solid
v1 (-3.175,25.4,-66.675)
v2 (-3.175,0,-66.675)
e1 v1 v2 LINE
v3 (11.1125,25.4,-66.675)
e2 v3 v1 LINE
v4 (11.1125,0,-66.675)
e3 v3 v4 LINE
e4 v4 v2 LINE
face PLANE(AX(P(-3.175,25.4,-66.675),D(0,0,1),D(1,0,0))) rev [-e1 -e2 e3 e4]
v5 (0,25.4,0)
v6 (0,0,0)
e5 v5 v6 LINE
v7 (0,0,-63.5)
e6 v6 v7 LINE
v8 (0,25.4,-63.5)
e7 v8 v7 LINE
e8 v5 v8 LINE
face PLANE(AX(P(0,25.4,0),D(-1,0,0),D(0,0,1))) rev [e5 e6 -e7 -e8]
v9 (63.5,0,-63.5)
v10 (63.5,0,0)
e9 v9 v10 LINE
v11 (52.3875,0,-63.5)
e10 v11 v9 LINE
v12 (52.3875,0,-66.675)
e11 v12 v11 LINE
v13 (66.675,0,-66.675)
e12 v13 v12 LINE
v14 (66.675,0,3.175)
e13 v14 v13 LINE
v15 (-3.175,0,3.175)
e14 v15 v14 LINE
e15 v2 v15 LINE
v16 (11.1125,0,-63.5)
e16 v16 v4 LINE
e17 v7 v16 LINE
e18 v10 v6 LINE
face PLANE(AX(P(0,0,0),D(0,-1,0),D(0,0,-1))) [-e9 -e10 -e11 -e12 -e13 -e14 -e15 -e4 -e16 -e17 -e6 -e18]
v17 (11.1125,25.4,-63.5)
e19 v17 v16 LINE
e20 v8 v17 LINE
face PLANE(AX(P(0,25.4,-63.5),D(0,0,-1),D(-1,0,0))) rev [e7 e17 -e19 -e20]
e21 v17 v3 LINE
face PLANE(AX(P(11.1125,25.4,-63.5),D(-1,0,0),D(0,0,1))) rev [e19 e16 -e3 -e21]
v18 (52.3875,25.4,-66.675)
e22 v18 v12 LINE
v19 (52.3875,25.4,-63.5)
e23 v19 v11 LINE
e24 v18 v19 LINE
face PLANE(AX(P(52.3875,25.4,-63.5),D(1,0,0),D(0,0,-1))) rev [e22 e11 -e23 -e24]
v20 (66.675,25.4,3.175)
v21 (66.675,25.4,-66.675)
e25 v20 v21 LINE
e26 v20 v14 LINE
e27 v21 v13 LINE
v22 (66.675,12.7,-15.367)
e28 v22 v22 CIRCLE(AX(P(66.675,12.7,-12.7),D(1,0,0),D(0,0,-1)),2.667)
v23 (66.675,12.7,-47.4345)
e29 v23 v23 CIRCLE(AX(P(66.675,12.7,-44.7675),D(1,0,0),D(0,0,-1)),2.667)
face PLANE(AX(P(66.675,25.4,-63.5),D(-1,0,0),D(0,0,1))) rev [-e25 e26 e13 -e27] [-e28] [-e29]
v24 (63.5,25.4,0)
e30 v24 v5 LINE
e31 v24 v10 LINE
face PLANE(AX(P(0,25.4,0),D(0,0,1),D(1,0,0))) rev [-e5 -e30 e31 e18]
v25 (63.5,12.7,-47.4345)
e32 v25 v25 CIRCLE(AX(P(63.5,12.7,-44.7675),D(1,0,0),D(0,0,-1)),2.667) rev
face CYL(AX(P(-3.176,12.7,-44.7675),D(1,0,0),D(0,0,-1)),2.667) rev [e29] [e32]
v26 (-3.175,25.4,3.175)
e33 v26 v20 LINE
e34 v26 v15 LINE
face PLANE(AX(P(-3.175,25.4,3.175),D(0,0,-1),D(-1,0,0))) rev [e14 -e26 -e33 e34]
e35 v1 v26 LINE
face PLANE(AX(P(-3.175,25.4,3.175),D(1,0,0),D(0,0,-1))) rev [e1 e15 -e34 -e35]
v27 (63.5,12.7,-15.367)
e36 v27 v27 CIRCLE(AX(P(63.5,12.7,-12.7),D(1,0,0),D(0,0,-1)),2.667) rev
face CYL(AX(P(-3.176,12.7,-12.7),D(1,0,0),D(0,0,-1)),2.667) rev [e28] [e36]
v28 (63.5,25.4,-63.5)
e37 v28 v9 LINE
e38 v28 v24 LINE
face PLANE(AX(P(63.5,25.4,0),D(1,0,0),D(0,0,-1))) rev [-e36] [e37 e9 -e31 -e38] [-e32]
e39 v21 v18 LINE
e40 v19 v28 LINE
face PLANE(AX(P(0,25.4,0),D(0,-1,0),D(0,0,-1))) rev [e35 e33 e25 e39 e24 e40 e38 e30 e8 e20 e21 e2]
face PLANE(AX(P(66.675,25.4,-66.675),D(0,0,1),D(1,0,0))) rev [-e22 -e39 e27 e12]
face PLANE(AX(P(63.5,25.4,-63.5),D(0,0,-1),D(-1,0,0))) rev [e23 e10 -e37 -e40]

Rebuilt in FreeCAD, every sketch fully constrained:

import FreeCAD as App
import Part
import Sketcher
Q = App.Units.Quantity


def add_polygon(sketch, points):
    """Adds a closed chain of lines whose ends are joined by coincident constraints."""
    first, n = sketch.GeometryCount, len(points)
    for a, b in zip(points, points[1:] + points[:1]):
        sketch.addGeometry(Part.LineSegment(App.Vector(*a, 0), App.Vector(*b, 0)), False)
    for i in range(n):
        sketch.addConstraint(Sketcher.Constraint("Coincident", first + i, 2, first + (i + 1) % n, 1))

doc = App.newDocument("Part")
body = doc.addObject("PartDesign::Body", "Body")

sketch1 = body.newObject("Sketcher::SketchObject", "Sketch")
sketch1.AttachmentSupport = (doc.getObject("XZ_Plane"), [""])
sketch1.MapMode = "FlatFace"
add_polygon(sketch1, [(-3.2, -66.7), (-3.2, 3.2), (66.7, 3.2), (66.7, -66.7), (52.4, -66.7), (52.4, -63.5), (63.5, -63.5), (63.5, 0), (0, 0), (0, -63.5), (11.1, -63.5), (11.1, -66.7)])
sketch1.addConstraint(Sketcher.Constraint("Vertical", 0))
sketch1.addConstraint(Sketcher.Constraint("Horizontal", 1))
sketch1.addConstraint(Sketcher.Constraint("Vertical", 2))
sketch1.addConstraint(Sketcher.Constraint("Horizontal", 3))
sketch1.addConstraint(Sketcher.Constraint("Vertical", 4))
sketch1.addConstraint(Sketcher.Constraint("Horizontal", 5))
sketch1.addConstraint(Sketcher.Constraint("Vertical", 6))
sketch1.addConstraint(Sketcher.Constraint("Horizontal", 7))
sketch1.addConstraint(Sketcher.Constraint("Vertical", 8))
sketch1.addConstraint(Sketcher.Constraint("Horizontal", 9))
sketch1.addConstraint(Sketcher.Constraint("Vertical", 10))
sketch1.addConstraint(Sketcher.Constraint("Horizontal", 11))
sketch1.addConstraint(Sketcher.Constraint("Coincident", 7, 2, -1, 1))
sketch1.addConstraint(Sketcher.Constraint("Horizontal", 5, 2, 8, 2))
sketch1.addConstraint(Sketcher.Constraint("Horizontal", 3, 2, 10, 2))
sketch1.addConstraint(Sketcher.Constraint("Equal", 5, 9))
sketch1.addConstraint(Sketcher.Constraint("Equal", 3, 11))
sketch1.addConstraint(Sketcher.Constraint("Equal", 1, 0))
sketch1.addConstraint(Sketcher.Constraint("Equal", 7, 6))
sketch1.addConstraint(Sketcher.Constraint("DistanceX", 7, 2, 7, 1, Q("2.5 in")))
sketch1.addConstraint(Sketcher.Constraint("DistanceX", 1, 1, 1, 2, Q("2.75 in")))
sketch1.addConstraint(Sketcher.Constraint("DistanceX", 3, 2, 3, 1, Q("0.5625 in")))
sketch1.addConstraint(Sketcher.Constraint("DistanceY", 4, 1, 4, 2, Q("0.125 in")))
pad1 = body.newObject("PartDesign::Pad", "Pad")
pad1.Profile = sketch1
pad1.Length = Q("1 in")
pad1.Reversed = True

sketch2 = body.newObject("Sketcher::SketchObject", "Sketch001")
sketch2.AttachmentSupport = (doc.getObject("YZ_Plane"), [""])
sketch2.MapMode = "FlatFace"
sketch2.AttachmentOffset = App.Placement(App.Vector(0, 0, 2.625 * 25.4), App.Rotation())
sketch2.addGeometry(Part.Circle(App.Vector(12.7, -12.7, 0), App.Vector(0, 0, 1), 2.7), False)
sketch2.addConstraint(Sketcher.Constraint("Diameter", 0, Q("0.21 in")))
sketch2.addConstraint(Sketcher.Constraint("DistanceX", -1, 1, 0, 3, Q("0.5 in")))
sketch2.addConstraint(Sketcher.Constraint("DistanceY", 0, 3, -1, 1, Q("0.5 in")))
pocket1 = body.newObject("PartDesign::Pocket", "Pocket")
pocket1.Profile = sketch2
pocket1.Type = "UpToFirst"

sketch3 = body.newObject("Sketcher::SketchObject", "Sketch002")
sketch3.AttachmentSupport = (doc.getObject("YZ_Plane"), [""])
sketch3.MapMode = "FlatFace"
sketch3.AttachmentOffset = App.Placement(App.Vector(0, 0, 2.625 * 25.4), App.Rotation())
sketch3.addGeometry(Part.Circle(App.Vector(12.7, -44.8, 0), App.Vector(0, 0, 1), 2.7), False)
sketch3.addConstraint(Sketcher.Constraint("Diameter", 0, Q("0.21 in")))
sketch3.addConstraint(Sketcher.Constraint("DistanceX", -1, 1, 0, 3, Q("0.5 in")))
sketch3.addConstraint(Sketcher.Constraint("DistanceY", 0, 3, -1, 1, Q("1.7625 in")))
pocket2 = body.newObject("PartDesign::Pocket", "Pocket001")
pocket2.Profile = sketch3
pocket2.Type = "UpToFirst"

doc.recompute()
